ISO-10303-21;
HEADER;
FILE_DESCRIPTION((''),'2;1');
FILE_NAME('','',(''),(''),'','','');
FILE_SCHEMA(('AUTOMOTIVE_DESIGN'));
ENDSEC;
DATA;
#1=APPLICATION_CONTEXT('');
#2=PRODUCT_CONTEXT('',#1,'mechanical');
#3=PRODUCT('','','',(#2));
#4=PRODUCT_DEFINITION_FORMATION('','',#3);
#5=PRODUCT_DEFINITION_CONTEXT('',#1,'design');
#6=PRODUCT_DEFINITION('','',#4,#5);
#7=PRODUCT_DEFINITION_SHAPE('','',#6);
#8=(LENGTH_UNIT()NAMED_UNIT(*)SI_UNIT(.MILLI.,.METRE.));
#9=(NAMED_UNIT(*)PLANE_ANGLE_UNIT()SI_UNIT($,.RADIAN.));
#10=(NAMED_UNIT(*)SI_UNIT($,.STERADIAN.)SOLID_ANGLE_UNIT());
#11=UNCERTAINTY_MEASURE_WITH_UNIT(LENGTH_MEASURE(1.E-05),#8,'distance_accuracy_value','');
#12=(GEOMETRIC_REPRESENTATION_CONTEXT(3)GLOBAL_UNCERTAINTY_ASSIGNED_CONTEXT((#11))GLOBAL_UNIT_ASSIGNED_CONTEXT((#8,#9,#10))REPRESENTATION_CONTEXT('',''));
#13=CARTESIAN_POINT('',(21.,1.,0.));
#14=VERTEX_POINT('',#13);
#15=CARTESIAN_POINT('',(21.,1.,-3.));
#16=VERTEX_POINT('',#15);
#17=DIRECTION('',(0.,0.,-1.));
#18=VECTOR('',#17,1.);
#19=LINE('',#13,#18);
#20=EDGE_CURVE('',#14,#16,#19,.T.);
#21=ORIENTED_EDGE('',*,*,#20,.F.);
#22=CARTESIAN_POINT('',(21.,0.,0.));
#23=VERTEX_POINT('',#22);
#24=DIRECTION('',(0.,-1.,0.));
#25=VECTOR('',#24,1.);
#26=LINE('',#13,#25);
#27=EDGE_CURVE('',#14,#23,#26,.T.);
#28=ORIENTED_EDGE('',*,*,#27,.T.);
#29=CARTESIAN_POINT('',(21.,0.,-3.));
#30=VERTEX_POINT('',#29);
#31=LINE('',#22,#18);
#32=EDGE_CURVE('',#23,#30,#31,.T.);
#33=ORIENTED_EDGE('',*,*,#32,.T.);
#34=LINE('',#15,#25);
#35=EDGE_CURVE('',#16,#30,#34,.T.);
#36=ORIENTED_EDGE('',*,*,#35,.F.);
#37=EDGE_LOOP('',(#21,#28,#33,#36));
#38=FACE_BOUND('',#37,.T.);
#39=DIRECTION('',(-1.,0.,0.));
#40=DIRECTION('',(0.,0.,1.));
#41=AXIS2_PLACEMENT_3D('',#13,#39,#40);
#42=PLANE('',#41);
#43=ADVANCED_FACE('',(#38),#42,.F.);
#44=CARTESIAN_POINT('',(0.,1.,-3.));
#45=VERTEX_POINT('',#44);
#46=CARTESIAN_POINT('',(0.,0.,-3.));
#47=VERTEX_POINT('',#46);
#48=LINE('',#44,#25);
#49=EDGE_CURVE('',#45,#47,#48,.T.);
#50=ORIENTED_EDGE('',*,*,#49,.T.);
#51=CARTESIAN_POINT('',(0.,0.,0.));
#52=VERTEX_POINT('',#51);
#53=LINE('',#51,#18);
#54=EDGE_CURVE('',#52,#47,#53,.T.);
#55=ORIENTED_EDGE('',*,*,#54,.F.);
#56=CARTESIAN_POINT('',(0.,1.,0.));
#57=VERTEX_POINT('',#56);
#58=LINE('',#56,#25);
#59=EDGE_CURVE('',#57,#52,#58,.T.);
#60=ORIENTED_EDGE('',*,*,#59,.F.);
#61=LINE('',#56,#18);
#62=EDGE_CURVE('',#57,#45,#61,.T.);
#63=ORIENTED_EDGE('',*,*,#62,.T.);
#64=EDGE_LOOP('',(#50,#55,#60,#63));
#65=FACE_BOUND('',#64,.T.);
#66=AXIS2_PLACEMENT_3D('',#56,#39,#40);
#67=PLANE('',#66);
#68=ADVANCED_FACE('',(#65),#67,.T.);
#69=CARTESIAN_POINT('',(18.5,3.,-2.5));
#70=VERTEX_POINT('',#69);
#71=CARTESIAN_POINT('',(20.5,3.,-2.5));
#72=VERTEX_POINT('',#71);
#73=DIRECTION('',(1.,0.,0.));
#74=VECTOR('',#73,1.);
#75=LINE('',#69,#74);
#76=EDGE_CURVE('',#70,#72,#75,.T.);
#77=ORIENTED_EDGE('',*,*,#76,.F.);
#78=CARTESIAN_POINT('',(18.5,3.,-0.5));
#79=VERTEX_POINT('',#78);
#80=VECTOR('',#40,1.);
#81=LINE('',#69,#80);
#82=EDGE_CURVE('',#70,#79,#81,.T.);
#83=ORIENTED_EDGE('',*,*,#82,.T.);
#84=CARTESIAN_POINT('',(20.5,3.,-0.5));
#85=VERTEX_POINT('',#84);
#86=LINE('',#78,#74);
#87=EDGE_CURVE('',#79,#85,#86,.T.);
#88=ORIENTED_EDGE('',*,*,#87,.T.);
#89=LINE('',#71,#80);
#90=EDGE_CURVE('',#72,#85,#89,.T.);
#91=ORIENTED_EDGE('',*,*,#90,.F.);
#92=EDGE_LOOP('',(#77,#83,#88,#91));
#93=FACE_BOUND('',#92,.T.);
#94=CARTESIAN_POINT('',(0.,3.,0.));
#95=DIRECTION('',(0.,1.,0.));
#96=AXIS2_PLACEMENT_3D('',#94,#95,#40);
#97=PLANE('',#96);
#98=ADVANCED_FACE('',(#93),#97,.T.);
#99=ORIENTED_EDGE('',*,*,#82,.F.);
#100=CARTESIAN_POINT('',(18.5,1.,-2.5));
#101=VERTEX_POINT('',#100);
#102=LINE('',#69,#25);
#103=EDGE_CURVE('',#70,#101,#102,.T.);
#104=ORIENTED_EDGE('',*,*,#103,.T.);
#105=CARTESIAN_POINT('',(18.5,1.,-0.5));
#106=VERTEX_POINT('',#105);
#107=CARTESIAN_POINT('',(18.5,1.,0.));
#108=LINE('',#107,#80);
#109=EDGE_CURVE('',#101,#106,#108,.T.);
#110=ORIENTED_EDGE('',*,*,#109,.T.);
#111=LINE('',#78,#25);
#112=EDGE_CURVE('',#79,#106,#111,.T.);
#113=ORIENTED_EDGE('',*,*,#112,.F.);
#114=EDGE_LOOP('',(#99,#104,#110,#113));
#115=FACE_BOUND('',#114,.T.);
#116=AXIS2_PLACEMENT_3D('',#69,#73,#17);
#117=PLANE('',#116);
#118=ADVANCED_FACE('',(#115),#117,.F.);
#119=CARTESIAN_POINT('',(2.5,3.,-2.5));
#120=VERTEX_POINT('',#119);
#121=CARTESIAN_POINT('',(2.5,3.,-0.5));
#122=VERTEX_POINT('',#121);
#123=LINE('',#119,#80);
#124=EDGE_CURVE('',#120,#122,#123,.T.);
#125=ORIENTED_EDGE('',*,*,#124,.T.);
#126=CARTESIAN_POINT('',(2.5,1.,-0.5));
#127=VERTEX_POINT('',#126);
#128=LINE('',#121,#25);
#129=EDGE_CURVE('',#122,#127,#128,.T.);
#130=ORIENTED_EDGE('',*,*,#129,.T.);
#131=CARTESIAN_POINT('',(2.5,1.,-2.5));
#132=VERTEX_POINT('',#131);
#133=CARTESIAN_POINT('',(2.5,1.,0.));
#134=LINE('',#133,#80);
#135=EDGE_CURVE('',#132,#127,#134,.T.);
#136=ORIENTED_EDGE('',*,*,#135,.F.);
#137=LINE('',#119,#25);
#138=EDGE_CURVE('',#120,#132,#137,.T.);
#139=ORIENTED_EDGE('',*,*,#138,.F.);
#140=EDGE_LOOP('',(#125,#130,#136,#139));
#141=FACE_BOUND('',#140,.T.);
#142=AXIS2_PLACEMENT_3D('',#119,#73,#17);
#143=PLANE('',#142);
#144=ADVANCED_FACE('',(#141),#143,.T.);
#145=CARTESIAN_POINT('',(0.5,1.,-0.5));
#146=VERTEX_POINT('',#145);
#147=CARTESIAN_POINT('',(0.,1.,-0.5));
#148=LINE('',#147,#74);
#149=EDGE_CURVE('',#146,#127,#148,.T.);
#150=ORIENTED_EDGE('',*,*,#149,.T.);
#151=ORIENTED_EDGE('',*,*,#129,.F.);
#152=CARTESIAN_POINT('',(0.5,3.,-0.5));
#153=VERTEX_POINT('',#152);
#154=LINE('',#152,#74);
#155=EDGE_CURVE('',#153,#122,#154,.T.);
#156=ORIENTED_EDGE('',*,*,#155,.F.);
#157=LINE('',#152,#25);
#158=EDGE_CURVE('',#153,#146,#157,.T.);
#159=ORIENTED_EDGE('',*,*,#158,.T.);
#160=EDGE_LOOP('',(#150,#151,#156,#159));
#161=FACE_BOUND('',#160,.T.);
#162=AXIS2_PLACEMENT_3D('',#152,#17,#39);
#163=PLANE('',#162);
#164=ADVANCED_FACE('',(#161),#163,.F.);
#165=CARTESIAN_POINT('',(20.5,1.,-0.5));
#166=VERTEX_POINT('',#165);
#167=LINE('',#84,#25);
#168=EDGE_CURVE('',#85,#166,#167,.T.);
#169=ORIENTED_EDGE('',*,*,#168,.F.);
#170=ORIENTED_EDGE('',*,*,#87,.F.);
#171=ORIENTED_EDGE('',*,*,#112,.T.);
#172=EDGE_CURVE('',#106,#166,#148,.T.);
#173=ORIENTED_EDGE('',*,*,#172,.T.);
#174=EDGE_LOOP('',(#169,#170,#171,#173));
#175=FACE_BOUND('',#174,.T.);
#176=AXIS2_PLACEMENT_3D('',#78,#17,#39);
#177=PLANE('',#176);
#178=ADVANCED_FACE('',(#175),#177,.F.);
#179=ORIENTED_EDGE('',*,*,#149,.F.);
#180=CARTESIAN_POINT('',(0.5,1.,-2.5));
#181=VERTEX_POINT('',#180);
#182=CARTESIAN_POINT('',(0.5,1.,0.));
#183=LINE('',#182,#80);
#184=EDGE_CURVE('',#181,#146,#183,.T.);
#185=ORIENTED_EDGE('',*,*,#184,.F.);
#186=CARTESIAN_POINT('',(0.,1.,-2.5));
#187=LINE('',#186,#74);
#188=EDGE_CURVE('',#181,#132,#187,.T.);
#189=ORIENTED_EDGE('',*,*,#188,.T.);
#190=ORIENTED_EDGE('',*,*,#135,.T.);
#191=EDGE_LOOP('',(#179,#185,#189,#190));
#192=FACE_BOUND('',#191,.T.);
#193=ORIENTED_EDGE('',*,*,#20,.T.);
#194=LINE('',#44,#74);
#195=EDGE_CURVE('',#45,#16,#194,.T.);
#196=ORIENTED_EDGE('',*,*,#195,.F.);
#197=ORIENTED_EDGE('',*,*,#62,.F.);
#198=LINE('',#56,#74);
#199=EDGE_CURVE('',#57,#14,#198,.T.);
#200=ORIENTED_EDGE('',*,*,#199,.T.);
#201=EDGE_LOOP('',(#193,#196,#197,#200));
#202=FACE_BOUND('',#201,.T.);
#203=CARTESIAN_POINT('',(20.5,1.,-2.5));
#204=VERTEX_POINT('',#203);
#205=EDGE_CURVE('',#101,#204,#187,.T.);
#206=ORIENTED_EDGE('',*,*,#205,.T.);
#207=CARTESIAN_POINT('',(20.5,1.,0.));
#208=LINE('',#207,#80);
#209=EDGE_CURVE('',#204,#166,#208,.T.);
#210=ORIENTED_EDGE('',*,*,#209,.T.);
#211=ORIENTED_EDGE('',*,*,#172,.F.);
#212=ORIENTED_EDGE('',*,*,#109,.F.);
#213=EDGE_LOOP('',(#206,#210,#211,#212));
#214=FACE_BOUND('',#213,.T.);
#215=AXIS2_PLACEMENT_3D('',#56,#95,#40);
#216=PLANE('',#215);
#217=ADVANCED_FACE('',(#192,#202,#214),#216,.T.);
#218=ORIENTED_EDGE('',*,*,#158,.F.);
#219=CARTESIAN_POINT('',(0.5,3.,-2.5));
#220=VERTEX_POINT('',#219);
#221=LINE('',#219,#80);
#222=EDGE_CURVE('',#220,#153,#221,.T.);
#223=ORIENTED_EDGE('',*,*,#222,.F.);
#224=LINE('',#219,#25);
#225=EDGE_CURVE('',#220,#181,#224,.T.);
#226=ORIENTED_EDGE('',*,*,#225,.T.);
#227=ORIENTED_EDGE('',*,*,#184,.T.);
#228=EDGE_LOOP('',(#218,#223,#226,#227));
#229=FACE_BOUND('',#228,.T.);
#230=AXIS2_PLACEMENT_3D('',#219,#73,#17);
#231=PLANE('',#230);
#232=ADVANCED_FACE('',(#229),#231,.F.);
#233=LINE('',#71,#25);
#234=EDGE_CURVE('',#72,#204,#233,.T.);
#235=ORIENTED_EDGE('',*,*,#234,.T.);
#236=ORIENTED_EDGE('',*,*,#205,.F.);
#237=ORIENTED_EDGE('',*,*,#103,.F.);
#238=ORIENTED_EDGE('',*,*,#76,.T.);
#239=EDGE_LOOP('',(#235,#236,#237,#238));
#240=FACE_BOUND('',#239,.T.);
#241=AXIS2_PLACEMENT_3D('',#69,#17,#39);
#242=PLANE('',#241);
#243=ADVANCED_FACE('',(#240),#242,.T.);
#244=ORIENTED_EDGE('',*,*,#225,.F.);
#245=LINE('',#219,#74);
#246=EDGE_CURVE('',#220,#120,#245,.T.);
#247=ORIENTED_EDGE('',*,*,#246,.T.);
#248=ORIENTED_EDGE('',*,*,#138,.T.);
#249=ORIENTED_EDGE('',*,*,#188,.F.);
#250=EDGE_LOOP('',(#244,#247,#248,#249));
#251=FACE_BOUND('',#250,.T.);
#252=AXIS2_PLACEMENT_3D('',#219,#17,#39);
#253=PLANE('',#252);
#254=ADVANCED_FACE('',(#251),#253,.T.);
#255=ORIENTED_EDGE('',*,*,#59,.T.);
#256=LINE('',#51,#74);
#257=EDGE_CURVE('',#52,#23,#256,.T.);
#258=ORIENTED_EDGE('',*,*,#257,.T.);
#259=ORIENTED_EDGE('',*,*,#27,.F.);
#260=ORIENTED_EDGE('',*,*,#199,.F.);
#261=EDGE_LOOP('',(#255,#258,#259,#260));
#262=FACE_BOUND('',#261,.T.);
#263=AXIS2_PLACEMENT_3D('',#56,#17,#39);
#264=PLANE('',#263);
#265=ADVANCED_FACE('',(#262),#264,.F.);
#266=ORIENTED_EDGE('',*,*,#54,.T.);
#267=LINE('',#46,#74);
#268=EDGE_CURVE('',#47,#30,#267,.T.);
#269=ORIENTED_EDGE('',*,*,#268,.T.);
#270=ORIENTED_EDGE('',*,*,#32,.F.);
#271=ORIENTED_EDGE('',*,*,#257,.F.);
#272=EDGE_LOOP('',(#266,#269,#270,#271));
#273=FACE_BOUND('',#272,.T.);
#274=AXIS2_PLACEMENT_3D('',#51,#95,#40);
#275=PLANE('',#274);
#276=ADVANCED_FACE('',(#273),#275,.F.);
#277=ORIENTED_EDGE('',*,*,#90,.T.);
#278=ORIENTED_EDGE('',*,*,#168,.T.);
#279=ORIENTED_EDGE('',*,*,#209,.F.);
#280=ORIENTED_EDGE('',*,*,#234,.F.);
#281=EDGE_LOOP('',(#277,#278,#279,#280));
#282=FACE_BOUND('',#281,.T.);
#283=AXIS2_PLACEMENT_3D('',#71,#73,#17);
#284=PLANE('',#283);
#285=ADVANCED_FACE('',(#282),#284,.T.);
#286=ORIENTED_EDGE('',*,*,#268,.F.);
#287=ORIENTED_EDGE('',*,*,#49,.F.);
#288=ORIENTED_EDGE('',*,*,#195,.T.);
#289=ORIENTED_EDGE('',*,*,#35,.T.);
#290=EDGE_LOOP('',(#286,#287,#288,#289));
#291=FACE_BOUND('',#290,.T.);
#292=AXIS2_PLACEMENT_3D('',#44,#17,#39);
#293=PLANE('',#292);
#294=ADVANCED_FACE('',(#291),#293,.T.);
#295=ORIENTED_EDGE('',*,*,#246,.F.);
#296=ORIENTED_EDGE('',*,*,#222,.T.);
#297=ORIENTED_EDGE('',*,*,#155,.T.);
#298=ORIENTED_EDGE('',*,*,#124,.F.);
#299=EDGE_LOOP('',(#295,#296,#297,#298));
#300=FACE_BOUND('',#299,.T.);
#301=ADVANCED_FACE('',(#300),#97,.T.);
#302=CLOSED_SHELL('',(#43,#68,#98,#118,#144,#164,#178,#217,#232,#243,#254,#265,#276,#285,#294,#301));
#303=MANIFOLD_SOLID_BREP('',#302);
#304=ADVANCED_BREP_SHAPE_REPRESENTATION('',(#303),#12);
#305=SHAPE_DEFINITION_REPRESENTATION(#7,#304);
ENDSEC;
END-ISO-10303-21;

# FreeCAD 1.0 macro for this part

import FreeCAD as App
import Part
import Sketcher


def add_polygon(sketch, points):
    """Adds a closed chain of lines whose ends are joined by coincident constraints."""
    first, n = sketch.GeometryCount, len(points)
    for a, b in zip(points, points[1:] + points[:1]):
        sketch.addGeometry(Part.LineSegment(App.Vector(*a, 0), App.Vector(*b, 0)), False)
    for i in range(n):
        sketch.addConstraint(Sketcher.Constraint("Coincident", first + i, 2, first + (i + 1) % n, 1))

doc = App.newDocument("Part")
params = doc.addObject("Spreadsheet::Sheet", "Params")
for row, (alias, value) in enumerate([
    ("sketch1_width", "21 mm"),
    ("sketch1_width2", "2 mm"),
    ("sketch1_height", "3 mm"),
    ("pad1_length", "1 mm"),
    ("sketch2_width", "2 mm"),
    ("pad2_length", "3 mm"),
], start=1):
    params.set(f"A{row}", alias)
    params.set(f"B{row}", "=" + value)
    params.setAlias(f"B{row}", alias)

body = doc.addObject("PartDesign::Body", "Body")

# Sketch on XZ plane
sketch1 = body.newObject("Sketcher::SketchObject", "Sketch")
sketch1.AttachmentSupport = (doc.getObject("XZ_Plane"), [""])
sketch1.MapMode = "FlatFace"
add_polygon(sketch1, [(0, -3), (0, 0), (21, 0), (21, -3)])  # lines 0-3
add_polygon(sketch1, [(2.5, -0.5), (0.5, -0.5), (0.5, -2.5), (2.5, -2.5)])  # lines 4-7
add_polygon(sketch1, [(20.5, -0.5), (18.5, -0.5), (18.5, -2.5), (20.5, -2.5)])  # lines 8-11
sketch1.addConstraint([
    Sketcher.Constraint("Vertical", 0),
    Sketcher.Constraint("Horizontal", 1),
    Sketcher.Constraint("Vertical", 2),
    Sketcher.Constraint("Horizontal", 3),
    Sketcher.Constraint("Horizontal", 4),
    Sketcher.Constraint("Vertical", 5),
    Sketcher.Constraint("Horizontal", 6),
    Sketcher.Constraint("Vertical", 7),
    Sketcher.Constraint("Horizontal", 8),
    Sketcher.Constraint("Vertical", 9),
    Sketcher.Constraint("Horizontal", 10),
    Sketcher.Constraint("Vertical", 11),
    Sketcher.Constraint("Coincident", 0, 2, -1, 1),
    Sketcher.Constraint("Horizontal", 7, 2, 8, 2),
    Sketcher.Constraint("Horizontal", 6, 2, 9, 2),
    Sketcher.Constraint("Equal", 6, 8),
    Sketcher.Constraint("Equal", 10, 5),
    Sketcher.Constraint("DistanceX", 1, 1, 1, 2, 21.0),
    Sketcher.Constraint("DistanceX", 4, 2, 4, 1, 2.0),
    Sketcher.Constraint("DistanceY", 0, 1, 0, 2, 3.0),
    Sketcher.Constraint("DistanceX", 7, 2, 8, 2, 16.0),
    Sketcher.Constraint("DistanceX", -1, 1, 4, 2, 0.5),
    Sketcher.Constraint("DistanceY", 4, 2, -1, 1, 0.5),
])
sketch1.setExpression("Constraints[29]", "Params.sketch1_width")
sketch1.setExpression("Constraints[30]", "Params.sketch1_width2")
sketch1.setExpression("Constraints[31]", "Params.sketch1_height")
pad1 = body.newObject("PartDesign::Pad", "Pad")
pad1.Profile = sketch1
pad1.setExpression("Length", "Params.pad1_length")
pad1.Reversed = True

# Sketch on XZ plane
sketch2 = body.newObject("Sketcher::SketchObject", "Sketch001")
sketch2.AttachmentSupport = (doc.getObject("XZ_Plane"), [""])
sketch2.MapMode = "FlatFace"
add_polygon(sketch2, [(0.5, -2.5), (0.5, -0.5), (2.5, -0.5), (2.5, -2.5)])  # lines 0-3
add_polygon(sketch2, [(18.5, -2.5), (18.5, -0.5), (20.5, -0.5), (20.5, -2.5)])  # lines 4-7
sketch2.addConstraint([
    Sketcher.Constraint("Vertical", 0),
    Sketcher.Constraint("Horizontal", 1),
    Sketcher.Constraint("Vertical", 2),
    Sketcher.Constraint("Horizontal", 3),
    Sketcher.Constraint("Vertical", 4),
    Sketcher.Constraint("Horizontal", 5),
    Sketcher.Constraint("Vertical", 6),
    Sketcher.Constraint("Horizontal", 7),
    Sketcher.Constraint("Horizontal", 1, 2, 4, 2),
    Sketcher.Constraint("Horizontal", 3, 2, 6, 2),
    Sketcher.Constraint("Equal", 3, 5),
    Sketcher.Constraint("Equal", 7, 0),
    Sketcher.Constraint("DistanceX", 1, 1, 1, 2, 2.0),
    Sketcher.Constraint("DistanceX", 1, 2, 4, 2, 16.0),
    Sketcher.Constraint("DistanceX", -1, 1, 0, 2, 0.5),
    Sketcher.Constraint("DistanceY", 0, 2, -1, 1, 0.5),
])
sketch2.setExpression("Constraints[20]", "Params.sketch2_width")
pad2 = body.newObject("PartDesign::Pad", "Pad001")
pad2.Profile = sketch2
pad2.setExpression("Length", "Params.pad2_length")
pad2.Reversed = True

doc.recompute()
